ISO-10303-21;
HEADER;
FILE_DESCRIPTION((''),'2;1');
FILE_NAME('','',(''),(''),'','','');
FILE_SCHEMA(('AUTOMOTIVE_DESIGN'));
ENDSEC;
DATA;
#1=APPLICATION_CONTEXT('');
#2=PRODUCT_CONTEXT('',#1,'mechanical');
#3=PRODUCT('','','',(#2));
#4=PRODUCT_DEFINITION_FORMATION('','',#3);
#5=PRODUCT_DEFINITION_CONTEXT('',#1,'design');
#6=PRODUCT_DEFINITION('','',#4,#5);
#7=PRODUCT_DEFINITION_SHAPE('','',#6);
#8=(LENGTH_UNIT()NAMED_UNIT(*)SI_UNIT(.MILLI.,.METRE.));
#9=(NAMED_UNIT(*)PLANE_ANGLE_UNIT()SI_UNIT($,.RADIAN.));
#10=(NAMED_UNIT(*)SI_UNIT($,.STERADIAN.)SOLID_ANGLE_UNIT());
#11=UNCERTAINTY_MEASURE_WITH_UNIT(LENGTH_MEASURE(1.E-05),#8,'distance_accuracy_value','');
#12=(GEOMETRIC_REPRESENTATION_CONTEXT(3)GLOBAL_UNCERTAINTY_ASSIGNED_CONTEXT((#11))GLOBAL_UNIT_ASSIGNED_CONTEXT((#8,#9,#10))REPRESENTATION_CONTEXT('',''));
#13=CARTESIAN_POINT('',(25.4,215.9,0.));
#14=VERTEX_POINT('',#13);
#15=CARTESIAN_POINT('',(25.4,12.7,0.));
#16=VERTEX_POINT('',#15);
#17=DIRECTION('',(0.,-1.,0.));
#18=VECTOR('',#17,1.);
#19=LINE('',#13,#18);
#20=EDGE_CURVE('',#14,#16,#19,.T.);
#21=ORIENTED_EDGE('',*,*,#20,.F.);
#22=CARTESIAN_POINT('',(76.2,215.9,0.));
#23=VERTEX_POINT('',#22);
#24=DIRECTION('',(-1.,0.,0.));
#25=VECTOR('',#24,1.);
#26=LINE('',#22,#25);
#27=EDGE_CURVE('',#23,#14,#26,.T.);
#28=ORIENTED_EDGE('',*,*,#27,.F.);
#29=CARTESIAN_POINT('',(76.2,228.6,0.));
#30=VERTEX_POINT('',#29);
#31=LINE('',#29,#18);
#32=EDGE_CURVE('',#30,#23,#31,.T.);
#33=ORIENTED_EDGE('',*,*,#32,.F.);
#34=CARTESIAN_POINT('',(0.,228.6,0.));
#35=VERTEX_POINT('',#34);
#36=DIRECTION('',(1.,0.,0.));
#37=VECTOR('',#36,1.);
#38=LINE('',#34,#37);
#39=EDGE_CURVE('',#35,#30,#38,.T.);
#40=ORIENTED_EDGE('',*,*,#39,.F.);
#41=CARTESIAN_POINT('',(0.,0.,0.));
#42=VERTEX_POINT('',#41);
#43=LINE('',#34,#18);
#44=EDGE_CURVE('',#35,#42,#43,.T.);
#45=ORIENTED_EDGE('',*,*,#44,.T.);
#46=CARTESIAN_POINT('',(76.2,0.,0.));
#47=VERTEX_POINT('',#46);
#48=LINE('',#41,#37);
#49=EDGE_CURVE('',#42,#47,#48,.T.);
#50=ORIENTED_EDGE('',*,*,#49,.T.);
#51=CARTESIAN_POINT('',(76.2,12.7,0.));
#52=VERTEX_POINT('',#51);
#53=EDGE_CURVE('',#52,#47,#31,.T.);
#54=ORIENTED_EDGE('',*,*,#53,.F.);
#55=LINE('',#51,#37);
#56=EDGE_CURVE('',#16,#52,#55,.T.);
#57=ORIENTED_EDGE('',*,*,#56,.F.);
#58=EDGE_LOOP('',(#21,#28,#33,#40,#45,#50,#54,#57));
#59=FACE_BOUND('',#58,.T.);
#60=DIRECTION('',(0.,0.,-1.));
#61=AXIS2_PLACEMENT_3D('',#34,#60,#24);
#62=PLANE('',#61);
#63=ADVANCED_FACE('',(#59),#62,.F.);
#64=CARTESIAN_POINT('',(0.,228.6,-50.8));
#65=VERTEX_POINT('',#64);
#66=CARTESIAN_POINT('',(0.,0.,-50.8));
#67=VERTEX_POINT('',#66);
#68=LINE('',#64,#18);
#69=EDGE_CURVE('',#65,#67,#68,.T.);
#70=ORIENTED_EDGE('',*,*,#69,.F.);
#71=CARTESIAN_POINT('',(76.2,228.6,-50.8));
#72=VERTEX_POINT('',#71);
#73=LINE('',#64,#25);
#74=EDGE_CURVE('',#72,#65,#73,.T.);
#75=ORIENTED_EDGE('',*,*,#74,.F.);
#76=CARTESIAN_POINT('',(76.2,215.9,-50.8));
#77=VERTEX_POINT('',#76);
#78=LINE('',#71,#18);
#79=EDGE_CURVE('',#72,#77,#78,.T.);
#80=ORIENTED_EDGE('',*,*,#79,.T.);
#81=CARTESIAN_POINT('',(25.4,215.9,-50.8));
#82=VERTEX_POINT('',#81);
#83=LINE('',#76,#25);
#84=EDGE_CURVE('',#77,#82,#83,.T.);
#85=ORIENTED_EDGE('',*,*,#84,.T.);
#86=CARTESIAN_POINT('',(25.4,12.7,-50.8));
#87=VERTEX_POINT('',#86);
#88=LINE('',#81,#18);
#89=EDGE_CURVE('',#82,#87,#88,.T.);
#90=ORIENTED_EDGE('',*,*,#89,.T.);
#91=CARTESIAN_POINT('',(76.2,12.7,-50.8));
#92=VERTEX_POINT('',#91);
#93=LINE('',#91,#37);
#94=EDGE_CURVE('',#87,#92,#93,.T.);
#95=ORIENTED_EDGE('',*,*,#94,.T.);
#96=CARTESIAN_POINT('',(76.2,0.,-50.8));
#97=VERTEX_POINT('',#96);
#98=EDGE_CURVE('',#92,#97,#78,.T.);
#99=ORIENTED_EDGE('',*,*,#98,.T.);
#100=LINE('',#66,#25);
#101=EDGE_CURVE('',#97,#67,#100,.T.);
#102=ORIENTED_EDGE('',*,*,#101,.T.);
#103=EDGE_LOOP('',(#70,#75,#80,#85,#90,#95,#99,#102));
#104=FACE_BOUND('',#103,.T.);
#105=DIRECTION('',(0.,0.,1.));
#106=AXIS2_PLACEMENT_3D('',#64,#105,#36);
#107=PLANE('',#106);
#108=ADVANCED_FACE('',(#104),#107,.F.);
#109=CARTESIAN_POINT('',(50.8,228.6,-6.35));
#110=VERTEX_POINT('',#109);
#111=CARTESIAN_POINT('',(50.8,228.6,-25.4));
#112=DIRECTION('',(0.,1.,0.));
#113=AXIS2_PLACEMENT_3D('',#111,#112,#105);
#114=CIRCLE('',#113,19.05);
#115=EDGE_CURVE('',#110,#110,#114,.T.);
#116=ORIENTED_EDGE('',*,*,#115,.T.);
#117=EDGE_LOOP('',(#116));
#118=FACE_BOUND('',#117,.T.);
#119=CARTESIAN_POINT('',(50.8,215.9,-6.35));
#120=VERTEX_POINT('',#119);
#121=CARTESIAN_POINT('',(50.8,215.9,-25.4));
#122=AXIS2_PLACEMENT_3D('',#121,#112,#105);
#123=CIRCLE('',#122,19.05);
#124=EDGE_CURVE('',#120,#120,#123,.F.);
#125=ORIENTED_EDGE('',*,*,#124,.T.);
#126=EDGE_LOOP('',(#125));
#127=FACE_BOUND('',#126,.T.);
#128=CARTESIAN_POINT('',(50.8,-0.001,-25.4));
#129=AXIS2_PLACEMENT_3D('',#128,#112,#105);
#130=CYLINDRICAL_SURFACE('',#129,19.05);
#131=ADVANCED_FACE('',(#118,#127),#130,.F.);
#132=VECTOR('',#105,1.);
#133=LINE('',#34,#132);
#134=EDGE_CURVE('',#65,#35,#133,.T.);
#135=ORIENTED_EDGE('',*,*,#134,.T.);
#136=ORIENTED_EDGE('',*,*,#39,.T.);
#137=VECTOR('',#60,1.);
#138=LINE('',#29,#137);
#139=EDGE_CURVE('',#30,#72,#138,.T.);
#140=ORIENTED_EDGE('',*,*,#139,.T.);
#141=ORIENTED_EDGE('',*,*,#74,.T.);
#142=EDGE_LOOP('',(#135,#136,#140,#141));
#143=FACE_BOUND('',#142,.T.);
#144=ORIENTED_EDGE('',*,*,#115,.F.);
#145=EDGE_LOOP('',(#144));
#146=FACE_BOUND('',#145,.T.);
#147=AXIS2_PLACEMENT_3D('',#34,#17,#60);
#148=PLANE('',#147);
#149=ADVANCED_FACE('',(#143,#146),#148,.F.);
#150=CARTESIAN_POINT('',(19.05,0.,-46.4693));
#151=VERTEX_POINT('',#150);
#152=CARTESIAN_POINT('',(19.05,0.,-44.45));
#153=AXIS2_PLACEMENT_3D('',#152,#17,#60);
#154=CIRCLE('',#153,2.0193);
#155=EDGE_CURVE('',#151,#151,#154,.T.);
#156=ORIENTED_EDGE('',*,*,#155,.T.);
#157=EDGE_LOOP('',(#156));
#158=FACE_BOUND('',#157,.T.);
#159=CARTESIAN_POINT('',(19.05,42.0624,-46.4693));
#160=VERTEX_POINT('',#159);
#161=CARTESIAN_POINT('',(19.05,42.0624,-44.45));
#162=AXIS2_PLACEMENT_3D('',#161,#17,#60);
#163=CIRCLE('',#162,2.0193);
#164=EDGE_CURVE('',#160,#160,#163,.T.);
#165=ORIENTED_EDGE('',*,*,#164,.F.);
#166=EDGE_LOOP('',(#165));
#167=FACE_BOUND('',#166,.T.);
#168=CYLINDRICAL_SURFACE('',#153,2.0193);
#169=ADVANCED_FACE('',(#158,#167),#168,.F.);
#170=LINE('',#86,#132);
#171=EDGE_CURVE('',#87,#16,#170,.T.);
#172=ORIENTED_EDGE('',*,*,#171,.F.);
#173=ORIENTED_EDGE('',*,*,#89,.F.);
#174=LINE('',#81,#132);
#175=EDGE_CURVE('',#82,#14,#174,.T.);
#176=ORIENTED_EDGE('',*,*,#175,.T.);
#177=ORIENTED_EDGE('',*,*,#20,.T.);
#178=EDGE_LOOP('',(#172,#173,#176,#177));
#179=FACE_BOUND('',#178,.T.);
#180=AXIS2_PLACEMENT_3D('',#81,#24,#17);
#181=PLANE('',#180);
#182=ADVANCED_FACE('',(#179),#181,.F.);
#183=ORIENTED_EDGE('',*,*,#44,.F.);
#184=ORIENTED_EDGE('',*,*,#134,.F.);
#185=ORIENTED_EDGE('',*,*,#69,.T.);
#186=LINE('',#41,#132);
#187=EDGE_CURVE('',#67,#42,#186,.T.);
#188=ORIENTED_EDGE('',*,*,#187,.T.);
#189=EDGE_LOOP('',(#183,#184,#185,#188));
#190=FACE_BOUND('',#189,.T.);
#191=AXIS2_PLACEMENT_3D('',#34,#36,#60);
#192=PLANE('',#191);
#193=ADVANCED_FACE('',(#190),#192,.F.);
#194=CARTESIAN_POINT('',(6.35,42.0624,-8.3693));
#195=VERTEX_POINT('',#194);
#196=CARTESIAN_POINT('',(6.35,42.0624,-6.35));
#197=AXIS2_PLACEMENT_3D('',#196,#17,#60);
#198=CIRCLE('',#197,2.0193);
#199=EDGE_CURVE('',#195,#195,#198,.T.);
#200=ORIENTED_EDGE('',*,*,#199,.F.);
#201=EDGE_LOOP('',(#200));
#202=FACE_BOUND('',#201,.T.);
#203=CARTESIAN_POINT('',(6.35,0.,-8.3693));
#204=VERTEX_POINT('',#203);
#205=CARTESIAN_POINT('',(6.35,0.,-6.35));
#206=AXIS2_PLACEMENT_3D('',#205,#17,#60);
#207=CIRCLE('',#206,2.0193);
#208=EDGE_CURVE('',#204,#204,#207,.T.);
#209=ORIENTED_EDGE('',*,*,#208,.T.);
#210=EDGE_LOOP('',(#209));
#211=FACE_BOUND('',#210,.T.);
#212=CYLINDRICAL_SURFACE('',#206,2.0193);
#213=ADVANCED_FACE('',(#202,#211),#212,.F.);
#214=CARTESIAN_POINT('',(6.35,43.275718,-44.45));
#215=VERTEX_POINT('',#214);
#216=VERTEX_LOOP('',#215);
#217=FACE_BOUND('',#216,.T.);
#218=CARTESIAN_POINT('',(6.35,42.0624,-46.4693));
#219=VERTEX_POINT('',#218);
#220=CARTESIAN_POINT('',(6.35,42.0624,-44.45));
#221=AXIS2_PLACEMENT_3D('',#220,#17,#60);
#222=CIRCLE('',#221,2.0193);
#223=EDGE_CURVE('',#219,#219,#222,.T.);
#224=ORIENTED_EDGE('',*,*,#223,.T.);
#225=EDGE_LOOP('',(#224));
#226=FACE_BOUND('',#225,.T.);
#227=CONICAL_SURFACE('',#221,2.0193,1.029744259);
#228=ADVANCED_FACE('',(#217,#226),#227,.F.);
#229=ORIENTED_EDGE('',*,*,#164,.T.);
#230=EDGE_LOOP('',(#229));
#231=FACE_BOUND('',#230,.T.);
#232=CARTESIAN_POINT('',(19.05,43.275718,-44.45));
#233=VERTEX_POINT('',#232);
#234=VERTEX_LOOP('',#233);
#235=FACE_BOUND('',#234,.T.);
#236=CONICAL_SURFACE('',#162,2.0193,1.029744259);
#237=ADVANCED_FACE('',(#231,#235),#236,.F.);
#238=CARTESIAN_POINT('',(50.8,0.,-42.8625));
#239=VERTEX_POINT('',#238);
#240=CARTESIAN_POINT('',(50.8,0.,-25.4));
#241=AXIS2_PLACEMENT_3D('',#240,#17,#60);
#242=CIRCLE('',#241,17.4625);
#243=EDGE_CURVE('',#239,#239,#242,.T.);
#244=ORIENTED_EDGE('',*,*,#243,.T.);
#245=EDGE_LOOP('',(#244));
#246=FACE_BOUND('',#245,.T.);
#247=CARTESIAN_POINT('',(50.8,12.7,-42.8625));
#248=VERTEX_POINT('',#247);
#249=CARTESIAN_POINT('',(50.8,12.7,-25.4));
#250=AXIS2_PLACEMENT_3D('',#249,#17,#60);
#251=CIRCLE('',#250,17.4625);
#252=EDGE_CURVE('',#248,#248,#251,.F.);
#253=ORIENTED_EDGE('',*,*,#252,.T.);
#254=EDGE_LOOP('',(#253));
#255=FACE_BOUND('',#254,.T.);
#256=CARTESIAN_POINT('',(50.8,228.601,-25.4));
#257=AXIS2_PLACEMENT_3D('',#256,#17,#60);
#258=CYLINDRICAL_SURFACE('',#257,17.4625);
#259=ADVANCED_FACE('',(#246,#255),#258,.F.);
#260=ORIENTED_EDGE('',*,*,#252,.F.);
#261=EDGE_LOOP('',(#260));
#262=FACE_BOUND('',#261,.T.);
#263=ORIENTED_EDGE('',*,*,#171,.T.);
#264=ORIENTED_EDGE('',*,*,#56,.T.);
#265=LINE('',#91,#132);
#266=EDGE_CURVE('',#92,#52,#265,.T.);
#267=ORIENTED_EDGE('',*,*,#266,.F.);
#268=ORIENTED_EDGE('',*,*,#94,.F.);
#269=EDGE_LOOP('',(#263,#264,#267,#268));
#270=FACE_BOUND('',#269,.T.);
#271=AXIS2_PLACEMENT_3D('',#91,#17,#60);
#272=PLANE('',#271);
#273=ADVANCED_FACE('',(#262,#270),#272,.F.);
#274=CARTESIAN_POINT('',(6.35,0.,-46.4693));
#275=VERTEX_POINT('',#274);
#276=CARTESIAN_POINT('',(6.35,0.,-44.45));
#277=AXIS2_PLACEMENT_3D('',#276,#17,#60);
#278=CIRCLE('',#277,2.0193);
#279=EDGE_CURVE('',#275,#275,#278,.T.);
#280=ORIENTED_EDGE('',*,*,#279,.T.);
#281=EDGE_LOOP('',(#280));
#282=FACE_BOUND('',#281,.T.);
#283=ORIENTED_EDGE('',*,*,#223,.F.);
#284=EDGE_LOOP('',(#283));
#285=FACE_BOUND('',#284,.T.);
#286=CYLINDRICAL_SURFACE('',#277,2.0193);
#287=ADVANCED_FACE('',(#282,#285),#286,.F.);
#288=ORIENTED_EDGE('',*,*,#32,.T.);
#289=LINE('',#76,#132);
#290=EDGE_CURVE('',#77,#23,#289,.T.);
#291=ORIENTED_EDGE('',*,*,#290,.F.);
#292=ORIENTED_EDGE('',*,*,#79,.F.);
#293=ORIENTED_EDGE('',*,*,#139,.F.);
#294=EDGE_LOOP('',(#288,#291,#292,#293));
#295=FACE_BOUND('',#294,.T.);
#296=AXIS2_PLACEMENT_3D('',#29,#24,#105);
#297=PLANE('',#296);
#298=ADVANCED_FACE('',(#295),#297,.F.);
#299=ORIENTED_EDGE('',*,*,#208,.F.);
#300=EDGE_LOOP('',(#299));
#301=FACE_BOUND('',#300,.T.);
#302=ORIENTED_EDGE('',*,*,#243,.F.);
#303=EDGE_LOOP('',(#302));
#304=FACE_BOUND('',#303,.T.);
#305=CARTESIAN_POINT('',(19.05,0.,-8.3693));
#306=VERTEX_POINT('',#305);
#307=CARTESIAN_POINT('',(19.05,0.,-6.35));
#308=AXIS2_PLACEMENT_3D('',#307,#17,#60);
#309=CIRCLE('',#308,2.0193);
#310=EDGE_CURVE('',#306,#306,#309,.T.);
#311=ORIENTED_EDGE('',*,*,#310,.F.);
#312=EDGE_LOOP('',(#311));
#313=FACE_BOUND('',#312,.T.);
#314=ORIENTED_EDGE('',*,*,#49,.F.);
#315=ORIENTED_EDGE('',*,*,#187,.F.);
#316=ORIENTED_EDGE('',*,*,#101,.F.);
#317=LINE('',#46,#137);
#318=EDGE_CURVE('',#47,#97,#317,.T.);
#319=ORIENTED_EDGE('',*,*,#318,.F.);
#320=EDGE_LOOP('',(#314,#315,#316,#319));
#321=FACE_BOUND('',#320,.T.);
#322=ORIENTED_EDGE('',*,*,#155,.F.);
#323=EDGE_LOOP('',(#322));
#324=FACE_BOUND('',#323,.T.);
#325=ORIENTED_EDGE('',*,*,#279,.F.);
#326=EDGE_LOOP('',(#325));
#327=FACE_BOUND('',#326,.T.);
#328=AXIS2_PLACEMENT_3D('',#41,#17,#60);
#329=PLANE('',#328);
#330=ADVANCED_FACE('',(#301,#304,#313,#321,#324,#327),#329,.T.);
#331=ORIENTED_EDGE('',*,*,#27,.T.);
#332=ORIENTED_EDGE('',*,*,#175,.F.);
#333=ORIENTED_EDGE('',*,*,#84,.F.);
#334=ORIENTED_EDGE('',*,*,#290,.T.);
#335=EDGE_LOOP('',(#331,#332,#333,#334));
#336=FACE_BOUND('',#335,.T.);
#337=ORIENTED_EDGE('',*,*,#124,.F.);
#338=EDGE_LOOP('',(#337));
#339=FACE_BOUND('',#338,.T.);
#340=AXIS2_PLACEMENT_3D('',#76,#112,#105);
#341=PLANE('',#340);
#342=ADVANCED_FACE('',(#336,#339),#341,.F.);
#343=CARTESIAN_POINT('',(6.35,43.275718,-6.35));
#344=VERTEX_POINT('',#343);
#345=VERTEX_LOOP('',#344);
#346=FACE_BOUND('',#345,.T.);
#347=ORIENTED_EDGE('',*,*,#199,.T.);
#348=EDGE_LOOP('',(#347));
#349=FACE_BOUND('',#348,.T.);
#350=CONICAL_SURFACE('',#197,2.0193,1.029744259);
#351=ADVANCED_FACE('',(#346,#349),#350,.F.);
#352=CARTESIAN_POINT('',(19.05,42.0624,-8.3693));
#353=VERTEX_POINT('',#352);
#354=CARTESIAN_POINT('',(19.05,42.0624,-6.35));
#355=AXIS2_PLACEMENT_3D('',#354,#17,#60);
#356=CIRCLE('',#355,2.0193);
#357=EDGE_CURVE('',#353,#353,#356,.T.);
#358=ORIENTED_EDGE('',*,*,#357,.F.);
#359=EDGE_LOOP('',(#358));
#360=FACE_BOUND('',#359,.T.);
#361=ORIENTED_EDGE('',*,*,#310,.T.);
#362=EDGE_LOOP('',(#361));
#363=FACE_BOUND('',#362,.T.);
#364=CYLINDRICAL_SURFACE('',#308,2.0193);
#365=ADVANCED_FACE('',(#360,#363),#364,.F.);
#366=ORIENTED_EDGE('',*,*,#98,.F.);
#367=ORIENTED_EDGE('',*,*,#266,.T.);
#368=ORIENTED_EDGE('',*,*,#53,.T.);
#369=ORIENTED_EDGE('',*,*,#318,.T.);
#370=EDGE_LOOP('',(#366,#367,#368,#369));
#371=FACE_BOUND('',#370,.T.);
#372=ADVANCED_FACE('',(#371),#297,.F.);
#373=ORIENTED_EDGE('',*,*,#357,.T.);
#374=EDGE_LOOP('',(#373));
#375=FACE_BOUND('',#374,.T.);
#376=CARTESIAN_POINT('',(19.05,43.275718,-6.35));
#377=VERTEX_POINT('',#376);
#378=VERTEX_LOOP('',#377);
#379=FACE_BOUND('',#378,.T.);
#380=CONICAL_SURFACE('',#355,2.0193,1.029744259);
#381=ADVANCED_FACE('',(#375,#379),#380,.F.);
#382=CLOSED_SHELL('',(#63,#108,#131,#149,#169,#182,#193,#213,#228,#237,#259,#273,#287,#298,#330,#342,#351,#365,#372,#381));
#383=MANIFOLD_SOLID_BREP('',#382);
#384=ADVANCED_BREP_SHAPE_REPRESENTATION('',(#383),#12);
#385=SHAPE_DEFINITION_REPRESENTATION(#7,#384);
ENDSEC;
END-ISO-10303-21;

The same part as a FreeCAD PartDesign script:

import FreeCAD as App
import Part
import Sketcher
from FreeCAD import Vector
Q = App.Units.Quantity

doc = App.newDocument("Part")
body = doc.addObject("PartDesign::Body", "Body")

sketch1 = body.newObject("Sketcher::SketchObject", "Sketch")
sketch1.AttachmentSupport = (doc.getObject("XZ_Plane"), [""])
sketch1.MapMode = "FlatFace"
sketch1.addGeometry([
    Part.LineSegment(Vector(0, -51, 0), Vector(0, 0, 0)),
    Part.LineSegment(Vector(0, 0, 0), Vector(76, 0, 0)),
    Part.LineSegment(Vector(76, 0, 0), Vector(76, -51, 0)),
    Part.LineSegment(Vector(76, -51, 0), Vector(0, -51, 0)),
], False)
sketch1.addConstraint([
    Sketcher.Constraint("Coincident", 0, 2, 1, 1),
    Sketcher.Constraint("Coincident", 1, 2, 2, 1),
    Sketcher.Constraint("Coincident", 2, 2, 3, 1),
    Sketcher.Constraint("Coincident", 3, 2, 0, 1),
    Sketcher.Constraint("Vertical", 0),
    Sketcher.Constraint("Horizontal", 1),
    Sketcher.Constraint("Vertical", 2),
    Sketcher.Constraint("Horizontal", 3),
    Sketcher.Constraint("Coincident", 0, 2, -1, 1),
    Sketcher.Constraint("DistanceX", 1, 1, 1, 2, Q("3 in")),
    Sketcher.Constraint("DistanceY", 0, 1, 0, 2, Q("2 in")),
])
pad1 = body.newObject("PartDesign::Pad", "Pad")
pad1.Profile = sketch1
pad1.Length = Q("9 in")
pad1.Reversed = True

sketch2 = body.newObject("Sketcher::SketchObject", "Sketch001")
sketch2.AttachmentSupport = (doc.getObject("XY_Plane"), [""])
sketch2.MapMode = "FlatFace"
sketch2.addGeometry([
    Part.LineSegment(Vector(25, 216, 0), Vector(25, 13, 0)),
    Part.LineSegment(Vector(25, 13, 0), Vector(76, 13, 0)),
    Part.LineSegment(Vector(76, 13, 0), Vector(76, 216, 0)),
    Part.LineSegment(Vector(76, 216, 0), Vector(25, 216, 0)),
], False)
sketch2.addConstraint([
    Sketcher.Constraint("Coincident", 0, 2, 1, 1),
    Sketcher.Constraint("Coincident", 1, 2, 2, 1),
    Sketcher.Constraint("Coincident", 2, 2, 3, 1),
    Sketcher.Constraint("Coincident", 3, 2, 0, 1),
    Sketcher.Constraint("Vertical", 0),
    Sketcher.Constraint("Horizontal", 1),
    Sketcher.Constraint("Vertical", 2),
    Sketcher.Constraint("Horizontal", 3),
    Sketcher.Constraint("DistanceX", 1, 1, 1, 2, Q("2 in")),
    Sketcher.Constraint("DistanceY", 0, 2, 0, 1, Q("8 in")),
    Sketcher.Constraint("DistanceX", -1, 1, 0, 2, Q("1 in")),
    Sketcher.Constraint("DistanceY", -1, 1, 0, 2, Q("0.5 in")),
])
pocket1 = body.newObject("PartDesign::Pocket", "Pocket")
pocket1.Profile = sketch2
pocket1.Type = "ThroughAll"

sketch3 = body.newObject("Sketcher::SketchObject", "Sketch002")
sketch3.AttachmentSupport = (doc.getObject("XZ_Plane"), [""])
sketch3.MapMode = "FlatFace"
sketch3.AttachmentOffset = App.Placement(Vector(0, 0, -9 * 25.4), App.Rotation())
sketch3.addGeometry(Part.Circle(Vector(51, -25, 0), Vector(0, 0, 1), 19), False)
sketch3.addConstraint([
    Sketcher.Constraint("Diameter", 0, Q("1.5 in")),
    Sketcher.Constraint("DistanceX", -1, 1, 0, 3, Q("2 in")),
    Sketcher.Constraint("DistanceY", 0, 3, -1, 1, Q("1 in")),
])
pocket2 = body.newObject("PartDesign::Pocket", "Pocket001")
pocket2.Profile = sketch3
pocket2.Type = "UpToFirst"
pocket2.Reversed = True

sketch4 = body.newObject("Sketcher::SketchObject", "Sketch003")
sketch4.AttachmentSupport = (doc.getObject("XZ_Plane"), [""])
sketch4.MapMode = "FlatFace"
sketch4.addGeometry(Part.Circle(Vector(51, -25, 0), Vector(0, 0, 1), 17), False)
sketch4.addConstraint([
    Sketcher.Constraint("Diameter", 0, Q("1.375 in")),
    Sketcher.Constraint("DistanceX", -1, 1, 0, 3, Q("2 in")),
    Sketcher.Constraint("DistanceY", 0, 3, -1, 1, Q("1 in")),
])
pocket3 = body.newObject("PartDesign::Pocket", "Pocket002")
pocket3.Profile = sketch4
pocket3.Type = "UpToFirst"

sketch5 = body.newObject("Sketcher::SketchObject", "Sketch004")
sketch5.AttachmentSupport = (doc.getObject("XZ_Plane"), [""])
sketch5.MapMode = "FlatFace"
sketch5.addGeometry([
    Part.Circle(Vector(6.3, -44.5, 0), Vector(0, 0, 1), 2),
    Part.Circle(Vector(19.1, -44.5, 0), Vector(0, 0, 1), 2),
    Part.Circle(Vector(6.3, -6.3, 0), Vector(0, 0, 1), 2),
    Part.Circle(Vector(19.1, -6.3, 0), Vector(0, 0, 1), 2),
], False)
sketch5.addConstraint([
    Sketcher.Constraint("Equal", 0, 1),
    Sketcher.Constraint("Equal", 1, 2),
    Sketcher.Constraint("Equal", 2, 3),
    Sketcher.Constraint("Horizontal", 0, 3, 1, 3),
    Sketcher.Constraint("Horizontal", 2, 3, 3, 3),
    Sketcher.Constraint("Vertical", 0, 3, 2, 3),
    Sketcher.Constraint("Vertical", 1, 3, 3, 3),
    Sketcher.Constraint("Diameter", 0, Q("0.159 in")),
    Sketcher.Constraint("DistanceX", 0, 3, 1, 3, Q("0.5 in")),
    Sketcher.Constraint("DistanceY", 0, 3, 2, 3, Q("1.5 in")),
    Sketcher.Constraint("DistanceX", -1, 1, 0, 3, Q("0.25 in")),
    Sketcher.Constraint("DistanceY", 0, 3, -1, 1, Q("1.75 in")),
])
doc.recompute()
hole = body.newObject("PartDesign::Hole", "Hole")
hole.Profile = sketch5
hole.ThreadType = "None"
hole.Diameter = Q("0.159 in")
hole.DepthType = "Dimension"
hole.Depth = Q("1.656 in")
hole.DrillPoint = "Angled"
hole.DrillPointAngle = 118

doc.recompute()
